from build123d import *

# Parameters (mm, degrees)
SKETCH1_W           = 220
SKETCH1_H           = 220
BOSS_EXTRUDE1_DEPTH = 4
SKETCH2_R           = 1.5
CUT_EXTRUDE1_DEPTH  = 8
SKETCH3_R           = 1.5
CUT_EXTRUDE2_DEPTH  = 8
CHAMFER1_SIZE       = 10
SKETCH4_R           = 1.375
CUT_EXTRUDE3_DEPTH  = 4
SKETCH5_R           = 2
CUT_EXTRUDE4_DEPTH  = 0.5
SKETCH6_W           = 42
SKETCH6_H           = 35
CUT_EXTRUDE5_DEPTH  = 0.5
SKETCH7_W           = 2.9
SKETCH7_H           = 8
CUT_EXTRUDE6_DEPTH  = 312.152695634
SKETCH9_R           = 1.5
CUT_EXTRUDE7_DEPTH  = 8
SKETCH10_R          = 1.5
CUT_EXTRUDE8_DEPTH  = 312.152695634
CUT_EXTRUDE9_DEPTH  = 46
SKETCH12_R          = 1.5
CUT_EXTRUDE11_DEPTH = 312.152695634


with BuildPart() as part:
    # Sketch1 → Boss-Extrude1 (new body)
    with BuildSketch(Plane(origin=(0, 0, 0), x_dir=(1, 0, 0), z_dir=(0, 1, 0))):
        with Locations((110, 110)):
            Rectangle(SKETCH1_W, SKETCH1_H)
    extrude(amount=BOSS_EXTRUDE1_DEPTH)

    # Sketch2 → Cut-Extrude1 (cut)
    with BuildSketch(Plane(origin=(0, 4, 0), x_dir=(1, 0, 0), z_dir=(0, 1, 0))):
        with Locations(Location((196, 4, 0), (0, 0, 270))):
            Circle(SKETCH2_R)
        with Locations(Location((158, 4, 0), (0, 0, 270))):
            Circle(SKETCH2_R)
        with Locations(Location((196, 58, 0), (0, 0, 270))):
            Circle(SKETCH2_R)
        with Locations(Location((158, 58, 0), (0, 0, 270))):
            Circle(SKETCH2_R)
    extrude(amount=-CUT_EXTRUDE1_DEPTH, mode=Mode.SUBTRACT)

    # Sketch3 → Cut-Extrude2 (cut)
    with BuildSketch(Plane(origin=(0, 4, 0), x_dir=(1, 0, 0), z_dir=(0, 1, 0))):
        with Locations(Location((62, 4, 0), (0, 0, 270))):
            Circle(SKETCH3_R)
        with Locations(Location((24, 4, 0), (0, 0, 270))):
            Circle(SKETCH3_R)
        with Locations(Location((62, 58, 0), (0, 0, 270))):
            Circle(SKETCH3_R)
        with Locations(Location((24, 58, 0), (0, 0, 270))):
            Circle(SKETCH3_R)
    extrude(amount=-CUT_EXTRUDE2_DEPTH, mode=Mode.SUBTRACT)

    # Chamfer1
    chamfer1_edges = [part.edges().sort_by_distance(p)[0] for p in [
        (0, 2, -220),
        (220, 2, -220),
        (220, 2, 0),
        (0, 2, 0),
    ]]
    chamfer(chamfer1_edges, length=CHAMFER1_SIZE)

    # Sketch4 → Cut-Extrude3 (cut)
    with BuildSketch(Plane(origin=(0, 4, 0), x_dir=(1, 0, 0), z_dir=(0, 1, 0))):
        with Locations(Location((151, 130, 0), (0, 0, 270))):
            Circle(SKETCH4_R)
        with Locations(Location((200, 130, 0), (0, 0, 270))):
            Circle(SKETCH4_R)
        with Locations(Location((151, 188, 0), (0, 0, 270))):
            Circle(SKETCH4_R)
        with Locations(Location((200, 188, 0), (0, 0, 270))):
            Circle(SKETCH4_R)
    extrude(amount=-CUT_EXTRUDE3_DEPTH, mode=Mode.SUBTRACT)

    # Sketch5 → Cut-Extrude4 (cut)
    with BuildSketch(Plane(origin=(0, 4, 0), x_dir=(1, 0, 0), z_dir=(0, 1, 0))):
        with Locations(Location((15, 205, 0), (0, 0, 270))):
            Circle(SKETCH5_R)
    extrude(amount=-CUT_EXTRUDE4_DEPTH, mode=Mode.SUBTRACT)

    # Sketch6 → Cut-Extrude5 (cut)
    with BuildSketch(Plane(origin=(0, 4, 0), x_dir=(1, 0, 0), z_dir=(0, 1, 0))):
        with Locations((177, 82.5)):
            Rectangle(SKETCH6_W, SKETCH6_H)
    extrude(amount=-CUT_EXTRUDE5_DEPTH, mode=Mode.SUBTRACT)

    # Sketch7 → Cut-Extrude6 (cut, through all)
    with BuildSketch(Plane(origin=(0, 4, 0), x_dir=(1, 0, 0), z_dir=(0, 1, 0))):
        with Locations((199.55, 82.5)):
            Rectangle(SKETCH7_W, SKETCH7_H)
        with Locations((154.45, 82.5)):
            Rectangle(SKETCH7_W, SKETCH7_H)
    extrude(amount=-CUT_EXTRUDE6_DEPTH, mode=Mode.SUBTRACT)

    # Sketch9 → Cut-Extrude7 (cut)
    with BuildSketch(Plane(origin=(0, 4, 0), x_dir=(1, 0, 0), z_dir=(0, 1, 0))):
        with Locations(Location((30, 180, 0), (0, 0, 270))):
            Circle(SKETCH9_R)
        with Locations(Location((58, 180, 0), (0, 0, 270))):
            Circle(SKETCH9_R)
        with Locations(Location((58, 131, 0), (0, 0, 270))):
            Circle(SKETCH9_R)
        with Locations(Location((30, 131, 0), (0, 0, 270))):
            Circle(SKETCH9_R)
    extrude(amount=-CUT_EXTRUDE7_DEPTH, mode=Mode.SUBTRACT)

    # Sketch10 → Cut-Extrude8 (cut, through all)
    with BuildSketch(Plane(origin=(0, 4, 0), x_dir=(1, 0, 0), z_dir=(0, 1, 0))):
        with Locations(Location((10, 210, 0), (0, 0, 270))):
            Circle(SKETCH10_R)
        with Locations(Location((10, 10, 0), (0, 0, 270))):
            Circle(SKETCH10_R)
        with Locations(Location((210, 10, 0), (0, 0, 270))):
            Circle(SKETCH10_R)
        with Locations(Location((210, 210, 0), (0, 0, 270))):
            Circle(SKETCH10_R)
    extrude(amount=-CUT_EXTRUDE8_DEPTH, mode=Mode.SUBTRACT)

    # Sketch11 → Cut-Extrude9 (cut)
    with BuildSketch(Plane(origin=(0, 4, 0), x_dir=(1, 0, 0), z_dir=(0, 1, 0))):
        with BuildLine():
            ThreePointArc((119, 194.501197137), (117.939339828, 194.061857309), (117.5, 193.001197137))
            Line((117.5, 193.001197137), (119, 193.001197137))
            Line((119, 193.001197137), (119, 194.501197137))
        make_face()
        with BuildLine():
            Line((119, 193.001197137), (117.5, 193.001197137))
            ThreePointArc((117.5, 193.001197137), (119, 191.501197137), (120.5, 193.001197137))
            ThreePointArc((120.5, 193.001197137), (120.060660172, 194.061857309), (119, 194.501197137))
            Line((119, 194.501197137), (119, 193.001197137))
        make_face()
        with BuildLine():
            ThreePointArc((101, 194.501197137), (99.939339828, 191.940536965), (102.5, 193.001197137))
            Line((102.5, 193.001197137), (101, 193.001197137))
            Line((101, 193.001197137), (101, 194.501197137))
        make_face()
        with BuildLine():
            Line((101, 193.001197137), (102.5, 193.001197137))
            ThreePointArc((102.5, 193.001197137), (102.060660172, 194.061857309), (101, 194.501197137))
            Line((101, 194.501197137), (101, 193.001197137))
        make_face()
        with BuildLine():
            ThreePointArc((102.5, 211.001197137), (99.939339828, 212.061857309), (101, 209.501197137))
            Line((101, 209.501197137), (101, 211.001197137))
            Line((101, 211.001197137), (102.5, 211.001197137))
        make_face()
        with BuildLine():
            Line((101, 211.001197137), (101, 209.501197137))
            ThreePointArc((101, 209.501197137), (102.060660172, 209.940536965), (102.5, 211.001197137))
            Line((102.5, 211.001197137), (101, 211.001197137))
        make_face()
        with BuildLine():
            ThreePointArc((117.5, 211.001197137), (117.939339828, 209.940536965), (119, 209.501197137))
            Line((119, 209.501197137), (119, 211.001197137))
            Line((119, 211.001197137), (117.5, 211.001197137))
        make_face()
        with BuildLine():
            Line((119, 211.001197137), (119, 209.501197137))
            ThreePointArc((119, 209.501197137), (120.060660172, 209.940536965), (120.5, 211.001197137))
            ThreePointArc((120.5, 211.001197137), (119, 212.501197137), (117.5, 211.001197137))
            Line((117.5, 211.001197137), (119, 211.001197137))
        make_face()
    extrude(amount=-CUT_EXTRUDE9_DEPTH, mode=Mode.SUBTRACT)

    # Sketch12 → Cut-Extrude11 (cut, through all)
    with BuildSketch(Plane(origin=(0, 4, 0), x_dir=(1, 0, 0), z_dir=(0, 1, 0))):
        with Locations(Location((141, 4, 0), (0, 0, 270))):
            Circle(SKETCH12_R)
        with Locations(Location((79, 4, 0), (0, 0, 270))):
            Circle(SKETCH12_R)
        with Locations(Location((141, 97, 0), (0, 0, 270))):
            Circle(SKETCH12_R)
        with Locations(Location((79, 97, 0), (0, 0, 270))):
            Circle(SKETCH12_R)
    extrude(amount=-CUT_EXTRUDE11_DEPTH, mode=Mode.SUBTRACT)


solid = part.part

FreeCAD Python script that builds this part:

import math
import FreeCAD as App
import Part
import Sketcher
Q = App.Units.Quantity


def edges_at(feature, points):
    """Names of the edges that pass closest to the given points."""
    edges = feature.Shape.Edges
    near = lambda p: min(range(len(edges)), key=lambda i: edges[i].distToShape(Part.Vertex(*p))[0])
    return sorted({f"Edge{near(p) + 1}" for p in points})


def add_polygon(sketch, points):
    """Adds a closed chain of lines whose ends are joined by coincident constraints."""
    first, n = sketch.GeometryCount, len(points)
    for a, b in zip(points, points[1:] + points[:1]):
        sketch.addGeometry(Part.LineSegment(App.Vector(*a, 0), App.Vector(*b, 0)), False)
    for i in range(n):
        sketch.addConstraint(Sketcher.Constraint("Coincident", first + i, 2, first + (i + 1) % n, 1))

doc = App.newDocument("Part")
body = doc.addObject("PartDesign::Body", "Body")

# Sketch on XZ plane
sketch1 = body.newObject("Sketcher::SketchObject", "Sketch")
sketch1.AttachmentSupport = (doc.getObject("XZ_Plane"), [""])
sketch1.MapMode = "FlatFace"
add_polygon(sketch1, [(0, -220), (0, 0), (220, 0), (220, -220)])  # lines 0-3
sketch1.addConstraint([
    Sketcher.Constraint("Vertical", 0),
    Sketcher.Constraint("Horizontal", 1),
    Sketcher.Constraint("Vertical", 2),
    Sketcher.Constraint("Horizontal", 3),
    Sketcher.Constraint("Coincident", 0, 2, -1, 1),
    Sketcher.Constraint("Equal", 3, 0),
    Sketcher.Constraint("DistanceX", 1, 1, 1, 2, Q("220 mm")),
])
pad1 = body.newObject("PartDesign::Pad", "Pad")
pad1.Profile = sketch1
pad1.Length = 4
pad1.Reversed = True

# Sketch on XZ plane
sketch2 = body.newObject("Sketcher::SketchObject", "Sketch001")
sketch2.AttachmentSupport = (doc.getObject("XZ_Plane"), [""])
sketch2.MapMode = "FlatFace"
sketch2.AttachmentOffset = App.Placement(App.Vector(0, 0, -4), App.Rotation())
sketch2.addGeometry([
    Part.Circle(App.Vector(196, -4, 0), App.Vector(0, 0, 1), 1.5),
    Part.Circle(App.Vector(158, -4, 0), App.Vector(0, 0, 1), 1.5),
    Part.Circle(App.Vector(196, -58, 0), App.Vector(0, 0, 1), 1.5),
    Part.Circle(App.Vector(158, -58, 0), App.Vector(0, 0, 1), 1.5),
], False)
sketch2.addConstraint([
    Sketcher.Constraint("Equal", 0, 1),
    Sketcher.Constraint("Equal", 1, 2),
    Sketcher.Constraint("Equal", 2, 3),
    Sketcher.Constraint("Horizontal", 0, 3, 1, 3),
    Sketcher.Constraint("Horizontal", 2, 3, 3, 3),
    Sketcher.Constraint("Vertical", 0, 3, 2, 3),
    Sketcher.Constraint("Vertical", 1, 3, 3, 3),
    Sketcher.Constraint("Diameter", 0, Q("3 mm")),
    Sketcher.Constraint("DistanceX", -1, 1, 0, 3, Q("196 mm")),
    Sketcher.Constraint("DistanceY", 0, 3, -1, 1, Q("4 mm")),
    Sketcher.Constraint("DistanceX", -1, 1, 1, 3, Q("158 mm")),
    Sketcher.Constraint("DistanceY", 2, 3, -1, 1, Q("58 mm")),
])
pocket1 = body.newObject("PartDesign::Pocket", "Pocket")
pocket1.Profile = sketch2
pocket1.Length = 8
pocket1.Reversed = True

# Sketch on XZ plane
sketch3 = body.newObject("Sketcher::SketchObject", "Sketch002")
sketch3.AttachmentSupport = (doc.getObject("XZ_Plane"), [""])
sketch3.MapMode = "FlatFace"
sketch3.AttachmentOffset = App.Placement(App.Vector(0, 0, -4), App.Rotation())
sketch3.addGeometry([
    Part.Circle(App.Vector(62, -4, 0), App.Vector(0, 0, 1), 1.5),
    Part.Circle(App.Vector(24, -4, 0), App.Vector(0, 0, 1), 1.5),
    Part.Circle(App.Vector(62, -58, 0), App.Vector(0, 0, 1), 1.5),
    Part.Circle(App.Vector(24, -58, 0), App.Vector(0, 0, 1), 1.5),
], False)
sketch3.addConstraint([
    Sketcher.Constraint("Equal", 0, 1),
    Sketcher.Constraint("Equal", 1, 2),
    Sketcher.Constraint("Equal", 2, 3),
    Sketcher.Constraint("Horizontal", 0, 3, 1, 3),
    Sketcher.Constraint("Horizontal", 2, 3, 3, 3),
    Sketcher.Constraint("Vertical", 0, 3, 2, 3),
    Sketcher.Constraint("Vertical", 1, 3, 3, 3),
    Sketcher.Constraint("Diameter", 0, Q("3 mm")),
    Sketcher.Constraint("DistanceX", -1, 1, 0, 3, Q("62 mm")),
    Sketcher.Constraint("DistanceY", 0, 3, -1, 1, Q("4 mm")),
    Sketcher.Constraint("DistanceX", -1, 1, 1, 3, Q("24 mm")),
    Sketcher.Constraint("DistanceY", 2, 3, -1, 1, Q("58 mm")),
])
pocket2 = body.newObject("PartDesign::Pocket", "Pocket001")
pocket2.Profile = sketch3
pocket2.Length = 8
pocket2.Reversed = True
doc.recompute()

chamfer = body.newObject("PartDesign::Chamfer", "Chamfer")
chamfer.Base = (pocket2, edges_at(pocket2, [
    (0, 2, -220),
    (220, 2, -220),
    (220, 2, 0),
    (0, 2, 0),
]))
chamfer.Size = 10

# Sketch on XZ plane
sketch4 = body.newObject("Sketcher::SketchObject", "Sketch003")
sketch4.AttachmentSupport = (doc.getObject("XZ_Plane"), [""])
sketch4.MapMode = "FlatFace"
sketch4.AttachmentOffset = App.Placement(App.Vector(0, 0, -4), App.Rotation())
sketch4.addGeometry([
    Part.Circle(App.Vector(151, -130, 0), App.Vector(0, 0, 1), 1.4),
    Part.Circle(App.Vector(200, -130, 0), App.Vector(0, 0, 1), 1.4),
    Part.Circle(App.Vector(151, -188, 0), App.Vector(0, 0, 1), 1.4),
    Part.Circle(App.Vector(200, -188, 0), App.Vector(0, 0, 1), 1.4),
], False)
sketch4.addConstraint([
    Sketcher.Constraint("Equal", 0, 1),
    Sketcher.Constraint("Equal", 1, 2),
    Sketcher.Constraint("Equal", 2, 3),
    Sketcher.Constraint("Horizontal", 0, 3, 1, 3),
    Sketcher.Constraint("Horizontal", 2, 3, 3, 3),
    Sketcher.Constraint("Vertical", 0, 3, 2, 3),
    Sketcher.Constraint("Vertical", 1, 3, 3, 3),
    Sketcher.Constraint("Diameter", 0, Q("2.75 mm")),
    Sketcher.Constraint("DistanceX", -1, 1, 0, 3, Q("151 mm")),
    Sketcher.Constraint("DistanceY", 0, 3, -1, 1, Q("130 mm")),
    Sketcher.Constraint("DistanceX", -1, 1, 1, 3, Q("200 mm")),
    Sketcher.Constraint("DistanceY", 2, 3, -1, 1, Q("188 mm")),
])
pocket3 = body.newObject("PartDesign::Pocket", "Pocket002")
pocket3.Profile = sketch4
pocket3.Length = 4
pocket3.Reversed = True

# Sketch on XZ plane
sketch5 = body.newObject("Sketcher::SketchObject", "Sketch004")
sketch5.AttachmentSupport = (doc.getObject("XZ_Plane"), [""])
sketch5.MapMode = "FlatFace"
sketch5.AttachmentOffset = App.Placement(App.Vector(0, 0, -4), App.Rotation())
sketch5.addGeometry(Part.Circle(App.Vector(15, -205, 0), App.Vector(0, 0, 1), 2), False)
sketch5.addConstraint([
    Sketcher.Constraint("Diameter", 0, Q("4 mm")),
    Sketcher.Constraint("DistanceX", -1, 1, 0, 3, Q("15 mm")),
    Sketcher.Constraint("DistanceY", 0, 3, -1, 1, Q("205 mm")),
])
pocket4 = body.newObject("PartDesign::Pocket", "Pocket003")
pocket4.Profile = sketch5
pocket4.Length = 0.5
pocket4.Reversed = True

# Sketch on XZ plane
sketch6 = body.newObject("Sketcher::SketchObject", "Sketch005")
sketch6.AttachmentSupport = (doc.getObject("XZ_Plane"), [""])
sketch6.MapMode = "FlatFace"
sketch6.AttachmentOffset = App.Placement(App.Vector(0, 0, -4), App.Rotation())
add_polygon(sketch6, [(156, -100), (156, -65), (198, -65), (198, -100)])  # lines 0-3
sketch6.addConstraint([
    Sketcher.Constraint("Vertical", 0),
    Sketcher.Constraint("Horizontal", 1),
    Sketcher.Constraint("Vertical", 2),
    Sketcher.Constraint("Horizontal", 3),
    Sketcher.Constraint("DistanceX", 1, 1, 1, 2, Q("42 mm")),
    Sketcher.Constraint("DistanceY", 0, 1, 0, 2, Q("35 mm")),
    Sketcher.Constraint("DistanceX", -1, 1, 0, 2, Q("156 mm")),
    Sketcher.Constraint("DistanceY", 0, 2, -1, 1, Q("65 mm")),
])
pocket5 = body.newObject("PartDesign::Pocket", "Pocket004")
pocket5.Profile = sketch6
pocket5.Length = 0.5
pocket5.Reversed = True

# Sketch on XZ plane
sketch7 = body.newObject("Sketcher::SketchObject", "Sketch006")
sketch7.AttachmentSupport = (doc.getObject("XZ_Plane"), [""])
sketch7.MapMode = "FlatFace"
sketch7.AttachmentOffset = App.Placement(App.Vector(0, 0, -4), App.Rotation())
add_polygon(sketch7, [(198.1, -86.5), (198.1, -78.5), (201, -78.5), (201, -86.5)])  # lines 0-3
add_polygon(sketch7, [(153, -86.5), (153, -78.5), (155.9, -78.5), (155.9, -86.5)])  # lines 4-7
sketch7.addConstraint([
    Sketcher.Constraint("Vertical", 0),
    Sketcher.Constraint("Horizontal", 1),
    Sketcher.Constraint("Vertical", 2),
    Sketcher.Constraint("Horizontal", 3),
    Sketcher.Constraint("Vertical", 4),
    Sketcher.Constraint("Horizontal", 5),
    Sketcher.Constraint("Vertical", 6),
    Sketcher.Constraint("Horizontal", 7),
    Sketcher.Constraint("Horizontal", 1, 2, 4, 2),
    Sketcher.Constraint("Horizontal", 3, 2, 6, 2),
    Sketcher.Constraint("Equal", 3, 5),
    Sketcher.Constraint("DistanceY", 0, 1, 0, 2, Q("8 mm")),
    Sketcher.Constraint("DistanceX", 1, 1, 1, 2, Q("2.9 mm")),
    Sketcher.Constraint("DistanceX", -1, 1, 1, 2, Q("201 mm")),
    Sketcher.Constraint("DistanceX", -1, 1, 4, 2, Q("153 mm")),
    Sketcher.Constraint("DistanceY", 0, 2, -1, 1, Q("78.5 mm")),
])
pocket6 = body.newObject("PartDesign::Pocket", "Pocket005")
pocket6.Profile = sketch7
pocket6.Type = "ThroughAll"
pocket6.Reversed = True

# Sketch on XZ plane
sketch8 = body.newObject("Sketcher::SketchObject", "Sketch007")
sketch8.AttachmentSupport = (doc.getObject("XZ_Plane"), [""])
sketch8.MapMode = "FlatFace"
sketch8.AttachmentOffset = App.Placement(App.Vector(0, 0, -4), App.Rotation())
sketch8.addGeometry([
    Part.Circle(App.Vector(30, -180, 0), App.Vector(0, 0, 1), 1.5),
    Part.Circle(App.Vector(58, -180, 0), App.Vector(0, 0, 1), 1.5),
    Part.Circle(App.Vector(58, -131, 0), App.Vector(0, 0, 1), 1.5),
    Part.Circle(App.Vector(30, -131, 0), App.Vector(0, 0, 1), 1.5),
], False)
sketch8.addConstraint([
    Sketcher.Constraint("Equal", 0, 1),
    Sketcher.Constraint("Equal", 1, 2),
    Sketcher.Constraint("Equal", 2, 3),
    Sketcher.Constraint("Horizontal", 0, 3, 1, 3),
    Sketcher.Constraint("Horizontal", 2, 3, 3, 3),
    Sketcher.Constraint("Vertical", 1, 3, 2, 3),
    Sketcher.Constraint("Vertical", 0, 3, 3, 3),
    Sketcher.Constraint("Diameter", 0, Q("3 mm")),
    Sketcher.Constraint("DistanceX", -1, 1, 0, 3, Q("30 mm")),
    Sketcher.Constraint("DistanceY", 0, 3, -1, 1, Q("180 mm")),
    Sketcher.Constraint("DistanceX", -1, 1, 1, 3, Q("58 mm")),
    Sketcher.Constraint("DistanceY", 2, 3, -1, 1, Q("131 mm")),
])
pocket7 = body.newObject("PartDesign::Pocket", "Pocket006")
pocket7.Profile = sketch8
pocket7.Length = 8
pocket7.Reversed = True

# Sketch on XZ plane
sketch9 = body.newObject("Sketcher::SketchObject", "Sketch008")
sketch9.AttachmentSupport = (doc.getObject("XZ_Plane"), [""])
sketch9.MapMode = "FlatFace"
sketch9.AttachmentOffset = App.Placement(App.Vector(0, 0, -4), App.Rotation())
sketch9.addGeometry([
    Part.Circle(App.Vector(10, -210, 0), App.Vector(0, 0, 1), 1.5),
    Part.Circle(App.Vector(10, -10, 0), App.Vector(0, 0, 1), 1.5),
    Part.Circle(App.Vector(210, -10, 0), App.Vector(0, 0, 1), 1.5),
    Part.Circle(App.Vector(210, -210, 0), App.Vector(0, 0, 1), 1.5),
], False)
sketch9.addConstraint([
    Sketcher.Constraint("Equal", 0, 1),
    Sketcher.Constraint("Equal", 1, 2),
    Sketcher.Constraint("Equal", 2, 3),
    Sketcher.Constraint("Horizontal", 1, 3, 2, 3),
    Sketcher.Constraint("Horizontal", 0, 3, 3, 3),
    Sketcher.Constraint("Vertical", 0, 3, 1, 3),
    Sketcher.Constraint("Vertical", 2, 3, 3, 3),
    Sketcher.Constraint("Diameter", 0, Q("3 mm")),
    Sketcher.Constraint("DistanceX", -1, 1, 0, 3, Q("10 mm")),
    Sketcher.Constraint("DistanceY", 0, 3, -1, 1, Q("210 mm")),
    Sketcher.Constraint("DistanceY", 1, 3, -1, 1, Q("10 mm")),
    Sketcher.Constraint("DistanceX", -1, 1, 2, 3, Q("210 mm")),
])
pocket8 = body.newObject("PartDesign::Pocket", "Pocket007")
pocket8.Profile = sketch9
pocket8.Type = "ThroughAll"
pocket8.Reversed = True

# Sketch on XZ plane
sketch10 = body.newObject("Sketcher::SketchObject", "Sketch009")
sketch10.AttachmentSupport = (doc.getObject("XZ_Plane"), [""])
sketch10.MapMode = "FlatFace"
sketch10.AttachmentOffset = App.Placement(App.Vector(0, 0, -4), App.Rotation())
sketch10.addGeometry([
    Part.ArcOfCircle(Part.Circle(App.Vector(119, -193, 0), App.Vector(0, 0, 1), 1.5), math.radians(180), math.radians(270)),  # 0
    Part.ArcOfCircle(Part.Circle(App.Vector(119, -193, 0), App.Vector(0, 0, 1), 1.5), math.radians(0), math.radians(180)),  # 1
    Part.ArcOfCircle(Part.Circle(App.Vector(119, -193, 0), App.Vector(0, 0, 1), 1.5), math.radians(-90), math.radians(0)),  # 2
    Part.ArcOfCircle(Part.Circle(App.Vector(101, -193, 0), App.Vector(0, 0, 1), 1.5), math.radians(0), math.radians(270)),  # 3
    Part.ArcOfCircle(Part.Circle(App.Vector(101, -193, 0), App.Vector(0, 0, 1), 1.5), math.radians(-90), math.radians(0)),  # 4
    Part.ArcOfCircle(Part.Circle(App.Vector(101, -211, 0), App.Vector(0, 0, 1), 1.5), math.radians(90), math.radians(360)),  # 5
    Part.ArcOfCircle(Part.Circle(App.Vector(101, -211, 0), App.Vector(0, 0, 1), 1.5), math.radians(0), math.radians(90)),  # 6
    Part.ArcOfCircle(Part.Circle(App.Vector(119, -211, 0), App.Vector(0, 0, 1), 1.5), math.radians(90), math.radians(180)),  # 7
    Part.ArcOfCircle(Part.Circle(App.Vector(119, -211, 0), App.Vector(0, 0, 1), 1.5), math.radians(0), math.radians(90)),  # 8
    Part.ArcOfCircle(Part.Circle(App.Vector(119, -211, 0), App.Vector(0, 0, 1), 1.5), math.radians(180), math.radians(360)),  # 9
], False)
sketch10.addConstraint([
    Sketcher.Constraint("Tangent", 0, 1, 1, 2),
    Sketcher.Constraint("Tangent", 1, 1, 2, 2),
    Sketcher.Constraint("Tangent", 2, 1, 0, 2),
    Sketcher.Constraint("Tangent", 3, 1, 4, 2),
    Sketcher.Constraint("Coincident", 4, 1, 3, 2),
    Sketcher.Constraint("Tangent", 5, 1, 6, 2),
    Sketcher.Constraint("Coincident", 6, 1, 5, 2),
    Sketcher.Constraint("Tangent", 7, 1, 8, 2),
    Sketcher.Constraint("Tangent", 8, 1, 9, 2),
    Sketcher.Constraint("Tangent", 9, 1, 7, 2),
    Sketcher.Constraint("Equal", 2, 3),
    Sketcher.Constraint("Equal", 4, 5),
    Sketcher.Constraint("Equal", 6, 7),
    Sketcher.Constraint("Horizontal", 2, 3, 3, 3),
    Sketcher.Constraint("Horizontal", 6, 3, 7, 3),
    Sketcher.Constraint("Horizontal", 4, 3, 0, 1),
    Sketcher.Constraint("Horizontal", 0, 1, 1, 1),
    Sketcher.Constraint("Horizontal", 1, 1, 3, 1),
    Sketcher.Constraint("Horizontal", 9, 3, 6, 1),
    Sketcher.Constraint("Horizontal", 6, 1, 8, 1),
    Sketcher.Constraint("Horizontal", 8, 1, 9, 1),
    Sketcher.Constraint("Vertical", 4, 3, 5, 3),
    Sketcher.Constraint("Vertical", 2, 3, 7, 3),
    Sketcher.Constraint("Vertical", 9, 3, 2, 1),
    Sketcher.Constraint("Vertical", 6, 3, 4, 1),
    Sketcher.Constraint("Vertical", 4, 1, 5, 1),
    Sketcher.Constraint("Vertical", 2, 1, 7, 1),
    Sketcher.Constraint("Radius", 0, Q("1.5 mm")),
    Sketcher.Constraint("DistanceX", -1, 1, 0, 3, Q("119 mm")),
    Sketcher.Constraint("DistanceX", -1, 1, 3, 3, Q("101 mm")),
    Sketcher.Constraint("DistanceY", 5, 3, 4, 3, Q("18 mm")),
    Sketcher.Constraint("DistanceY", 0, 3, -1, 1, Q("193.001197 mm")),
])
pocket9 = body.newObject("PartDesign::Pocket", "Pocket008")
pocket9.Profile = sketch10
pocket9.Length = 46
pocket9.Reversed = True

# Sketch on XZ plane
sketch11 = body.newObject("Sketcher::SketchObject", "Sketch010")
sketch11.AttachmentSupport = (doc.getObject("XZ_Plane"), [""])
sketch11.MapMode = "FlatFace"
sketch11.AttachmentOffset = App.Placement(App.Vector(0, 0, -4), App.Rotation())
sketch11.addGeometry([
    Part.Circle(App.Vector(141, -4, 0), App.Vector(0, 0, 1), 1.5),
    Part.Circle(App.Vector(79, -4, 0), App.Vector(0, 0, 1), 1.5),
    Part.Circle(App.Vector(141, -97, 0), App.Vector(0, 0, 1), 1.5),
    Part.Circle(App.Vector(79, -97, 0), App.Vector(0, 0, 1), 1.5),
], False)
sketch11.addConstraint([
    Sketcher.Constraint("Equal", 0, 1),
    Sketcher.Constraint("Equal", 1, 2),
    Sketcher.Constraint("Equal", 2, 3),
    Sketcher.Constraint("Horizontal", 0, 3, 1, 3),
    Sketcher.Constraint("Horizontal", 2, 3, 3, 3),
    Sketcher.Constraint("Vertical", 0, 3, 2, 3),
    Sketcher.Constraint("Vertical", 1, 3, 3, 3),
    Sketcher.Constraint("Diameter", 0, Q("3 mm")),
    Sketcher.Constraint("DistanceX", -1, 1, 0, 3, Q("141 mm")),
    Sketcher.Constraint("DistanceY", 0, 3, -1, 1, Q("4 mm")),
    Sketcher.Constraint("DistanceX", -1, 1, 1, 3, Q("79 mm")),
    Sketcher.Constraint("DistanceY", 2, 3, -1, 1, Q("97 mm")),
])
pocket10 = body.newObject("PartDesign::Pocket", "Pocket009")
pocket10.Profile = sketch11
pocket10.Type = "ThroughAll"
pocket10.Reversed = True

doc.recompute()
